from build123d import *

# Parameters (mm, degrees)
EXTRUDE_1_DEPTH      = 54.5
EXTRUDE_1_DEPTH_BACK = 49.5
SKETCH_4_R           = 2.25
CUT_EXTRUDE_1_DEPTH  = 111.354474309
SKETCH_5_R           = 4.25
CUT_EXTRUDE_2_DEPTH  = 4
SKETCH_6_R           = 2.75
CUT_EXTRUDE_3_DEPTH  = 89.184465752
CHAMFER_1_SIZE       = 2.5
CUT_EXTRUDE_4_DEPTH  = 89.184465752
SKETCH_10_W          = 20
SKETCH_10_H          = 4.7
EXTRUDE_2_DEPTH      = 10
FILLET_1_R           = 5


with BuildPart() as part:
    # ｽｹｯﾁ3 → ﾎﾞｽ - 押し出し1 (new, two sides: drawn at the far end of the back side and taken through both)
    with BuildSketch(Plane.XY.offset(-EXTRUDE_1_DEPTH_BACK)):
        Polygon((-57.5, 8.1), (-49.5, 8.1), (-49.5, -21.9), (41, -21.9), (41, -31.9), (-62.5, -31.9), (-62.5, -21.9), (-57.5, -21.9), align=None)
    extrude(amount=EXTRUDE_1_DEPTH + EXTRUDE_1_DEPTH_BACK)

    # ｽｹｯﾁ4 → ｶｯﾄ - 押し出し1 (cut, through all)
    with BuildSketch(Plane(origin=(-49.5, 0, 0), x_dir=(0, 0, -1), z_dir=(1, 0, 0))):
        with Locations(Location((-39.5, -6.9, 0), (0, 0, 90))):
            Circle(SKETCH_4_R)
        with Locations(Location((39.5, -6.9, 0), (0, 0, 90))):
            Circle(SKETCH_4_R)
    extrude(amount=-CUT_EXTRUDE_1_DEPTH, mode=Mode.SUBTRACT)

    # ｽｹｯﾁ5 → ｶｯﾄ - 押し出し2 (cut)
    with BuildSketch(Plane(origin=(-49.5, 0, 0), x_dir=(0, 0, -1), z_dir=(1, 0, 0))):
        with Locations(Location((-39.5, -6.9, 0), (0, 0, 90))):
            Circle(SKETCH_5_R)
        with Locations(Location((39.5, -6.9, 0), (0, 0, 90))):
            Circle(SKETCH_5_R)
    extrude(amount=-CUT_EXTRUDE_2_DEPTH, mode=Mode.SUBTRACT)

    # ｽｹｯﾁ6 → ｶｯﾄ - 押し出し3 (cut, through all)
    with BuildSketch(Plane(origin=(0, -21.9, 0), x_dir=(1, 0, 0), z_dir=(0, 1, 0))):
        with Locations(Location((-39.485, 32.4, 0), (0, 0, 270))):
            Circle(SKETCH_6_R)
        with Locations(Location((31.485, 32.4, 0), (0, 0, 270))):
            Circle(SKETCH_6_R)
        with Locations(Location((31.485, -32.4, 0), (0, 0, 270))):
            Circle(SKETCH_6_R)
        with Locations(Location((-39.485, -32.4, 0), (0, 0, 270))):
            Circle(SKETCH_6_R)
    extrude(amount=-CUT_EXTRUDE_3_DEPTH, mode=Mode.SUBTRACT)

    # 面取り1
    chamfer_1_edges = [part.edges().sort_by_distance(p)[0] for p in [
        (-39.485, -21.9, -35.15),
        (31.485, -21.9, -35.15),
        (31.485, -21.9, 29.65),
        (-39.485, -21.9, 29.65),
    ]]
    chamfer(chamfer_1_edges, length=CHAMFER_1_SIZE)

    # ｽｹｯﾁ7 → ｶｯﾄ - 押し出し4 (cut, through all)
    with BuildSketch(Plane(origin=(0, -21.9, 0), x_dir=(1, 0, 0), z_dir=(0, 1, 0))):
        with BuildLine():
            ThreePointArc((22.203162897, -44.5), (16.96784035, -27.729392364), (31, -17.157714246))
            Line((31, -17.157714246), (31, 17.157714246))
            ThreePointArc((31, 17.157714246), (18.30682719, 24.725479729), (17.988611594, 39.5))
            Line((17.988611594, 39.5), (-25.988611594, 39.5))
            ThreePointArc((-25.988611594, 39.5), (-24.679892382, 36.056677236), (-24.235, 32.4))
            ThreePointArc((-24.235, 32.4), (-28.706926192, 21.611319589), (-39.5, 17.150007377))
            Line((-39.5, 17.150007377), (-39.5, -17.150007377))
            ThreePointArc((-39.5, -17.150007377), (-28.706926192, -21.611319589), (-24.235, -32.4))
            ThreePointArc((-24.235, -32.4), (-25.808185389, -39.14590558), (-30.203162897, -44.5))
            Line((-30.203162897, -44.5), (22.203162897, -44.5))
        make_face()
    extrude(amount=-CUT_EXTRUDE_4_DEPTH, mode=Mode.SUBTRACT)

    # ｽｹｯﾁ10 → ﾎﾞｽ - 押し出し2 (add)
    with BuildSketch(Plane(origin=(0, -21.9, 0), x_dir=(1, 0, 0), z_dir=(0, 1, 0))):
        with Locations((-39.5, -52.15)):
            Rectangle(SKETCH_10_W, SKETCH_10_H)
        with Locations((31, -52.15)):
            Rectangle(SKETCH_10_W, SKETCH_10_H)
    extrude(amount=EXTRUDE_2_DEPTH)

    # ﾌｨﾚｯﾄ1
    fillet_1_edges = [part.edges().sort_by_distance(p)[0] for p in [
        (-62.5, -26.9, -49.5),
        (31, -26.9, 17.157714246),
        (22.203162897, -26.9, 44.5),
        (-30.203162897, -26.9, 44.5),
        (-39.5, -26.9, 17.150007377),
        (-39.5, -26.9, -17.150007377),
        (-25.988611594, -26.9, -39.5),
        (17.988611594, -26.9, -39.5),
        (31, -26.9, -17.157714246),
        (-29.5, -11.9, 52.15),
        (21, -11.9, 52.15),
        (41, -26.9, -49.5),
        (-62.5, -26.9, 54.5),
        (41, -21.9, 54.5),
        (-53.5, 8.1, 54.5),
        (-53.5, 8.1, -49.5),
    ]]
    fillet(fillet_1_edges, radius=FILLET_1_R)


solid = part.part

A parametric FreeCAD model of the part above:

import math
import FreeCAD as App
import Part
import Sketcher
from FreeCAD import Vector


def edges_at(feature, points):
    """Names of the edges that pass closest to the given points."""
    edges = feature.Shape.Edges
    near = lambda p: min(range(len(edges)), key=lambda i: edges[i].distToShape(Part.Vertex(*p))[0])
    return sorted({f"Edge{near(p) + 1}" for p in points})

doc = App.newDocument("Part")
body = doc.addObject("PartDesign::Body", "Body")

# Sketch on XY plane
sketch1 = body.newObject("Sketcher::SketchObject", "Sketch")
sketch1.AttachmentSupport = (doc.getObject("XY_Plane"), [""])
sketch1.MapMode = "FlatFace"
sketch1.addGeometry(Part.LineSegment(Vector(-50, 8, 0), Vector(-58, 8, 0)), False)
sketch1.addGeometry(Part.LineSegment(Vector(-58, 8, 0), Vector(-58, -22, 0)), False)
sketch1.addGeometry(Part.LineSegment(Vector(-58, -22, 0), Vector(-62, -22, 0)), False)
sketch1.addGeometry(Part.LineSegment(Vector(-62, -22, 0), Vector(-62, -32, 0)), False)
sketch1.addGeometry(Part.LineSegment(Vector(-62, -32, 0), Vector(41, -32, 0)), False)
sketch1.addGeometry(Part.LineSegment(Vector(41, -32, 0), Vector(41, -22, 0)), False)
sketch1.addGeometry(Part.LineSegment(Vector(41, -22, 0), Vector(-50, -22, 0)), False)
sketch1.addGeometry(Part.LineSegment(Vector(-50, -22, 0), Vector(-50, 8, 0)), False)
sketch1.addConstraint(Sketcher.Constraint("Coincident", 0, 2, 1, 1))
sketch1.addConstraint(Sketcher.Constraint("Coincident", 1, 2, 2, 1))
sketch1.addConstraint(Sketcher.Constraint("Coincident", 2, 2, 3, 1))
sketch1.addConstraint(Sketcher.Constraint("Coincident", 3, 2, 4, 1))
sketch1.addConstraint(Sketcher.Constraint("Coincident", 4, 2, 5, 1))
sketch1.addConstraint(Sketcher.Constraint("Coincident", 5, 2, 6, 1))
sketch1.addConstraint(Sketcher.Constraint("Coincident", 6, 2, 7, 1))
sketch1.addConstraint(Sketcher.Constraint("Coincident", 7, 2, 0, 1))
sketch1.addConstraint(Sketcher.Constraint("Horizontal", 0))
sketch1.addConstraint(Sketcher.Constraint("Vertical", 1))
sketch1.addConstraint(Sketcher.Constraint("Horizontal", 2))
sketch1.addConstraint(Sketcher.Constraint("Vertical", 3))
sketch1.addConstraint(Sketcher.Constraint("Horizontal", 4))
sketch1.addConstraint(Sketcher.Constraint("Vertical", 5))
sketch1.addConstraint(Sketcher.Constraint("Horizontal", 6))
sketch1.addConstraint(Sketcher.Constraint("Vertical", 7))
sketch1.addConstraint(Sketcher.Constraint("Horizontal", 2, 2, 5, 2))
sketch1.addConstraint(Sketcher.Constraint("DistanceX", 0, 2, 0, 1, 8.0))
sketch1.addConstraint(Sketcher.Constraint("DistanceX", 2, 2, 2, 1, 5.0))
sketch1.addConstraint(Sketcher.Constraint("DistanceY", 1, 2, 1, 1, 30.0))
sketch1.addConstraint(Sketcher.Constraint("DistanceY", 3, 2, 3, 1, 10.0))
sketch1.addConstraint(Sketcher.Constraint("DistanceX", 4, 1, 4, 2, 103.5))
sketch1.addConstraint(Sketcher.Constraint("DistanceX", -1, 1, 4, 2, 41.0))
sketch1.addConstraint(Sketcher.Constraint("DistanceY", -1, 1, 0, 2, 8.1))
pad1 = body.newObject("PartDesign::Pad", "Pad")
pad1.Profile = sketch1
pad1.Type = "TwoLengths"
pad1.Length = 54.5
pad1.Length2 = 49.5

# Sketch on YZ plane
sketch2 = body.newObject("Sketcher::SketchObject", "Sketch001")
sketch2.AttachmentSupport = (doc.getObject("YZ_Plane"), [""])
sketch2.MapMode = "FlatFace"
sketch2.AttachmentOffset = App.Placement(Vector(0, 0, -49.5), App.Rotation())
sketch2.addGeometry(Part.Circle(Vector(-6.9, 39.5, 0), Vector(0, 0, 1), 2.2), False)
sketch2.addGeometry(Part.Circle(Vector(-6.9, -39.5, 0), Vector(0, 0, 1), 2.2), False)
sketch2.addConstraint(Sketcher.Constraint("Equal", 0, 1))
sketch2.addConstraint(Sketcher.Constraint("Symmetric", 0, 3, 1, 3, -1))
sketch2.addConstraint(Sketcher.Constraint("Diameter", 0, 4.5))
sketch2.addConstraint(Sketcher.Constraint("DistanceY", 1, 3, 0, 3, 79.0))
sketch2.addConstraint(Sketcher.Constraint("DistanceX", 0, 3, -1, 1, 6.9))
pocket1 = body.newObject("PartDesign::Pocket", "Pocket")
pocket1.Profile = sketch2
pocket1.Type = "ThroughAll"

# Sketch on YZ plane
sketch3 = body.newObject("Sketcher::SketchObject", "Sketch002")
sketch3.AttachmentSupport = (doc.getObject("YZ_Plane"), [""])
sketch3.MapMode = "FlatFace"
sketch3.AttachmentOffset = App.Placement(Vector(0, 0, -49.5), App.Rotation())
sketch3.addGeometry(Part.Circle(Vector(-6.9, 39.5, 0), Vector(0, 0, 1), 4.2), False)
sketch3.addGeometry(Part.Circle(Vector(-6.9, -39.5, 0), Vector(0, 0, 1), 4.2), False)
sketch3.addConstraint(Sketcher.Constraint("Equal", 0, 1))
sketch3.addConstraint(Sketcher.Constraint("Symmetric", 0, 3, 1, 3, -1))
sketch3.addConstraint(Sketcher.Constraint("Diameter", 0, 8.5))
sketch3.addConstraint(Sketcher.Constraint("DistanceY", 1, 3, 0, 3, 79.0))
sketch3.addConstraint(Sketcher.Constraint("DistanceX", 0, 3, -1, 1, 6.9))
pocket2 = body.newObject("PartDesign::Pocket", "Pocket001")
pocket2.Profile = sketch3
pocket2.Length = 4

# Sketch on XZ plane
sketch4 = body.newObject("Sketcher::SketchObject", "Sketch003")
sketch4.AttachmentSupport = (doc.getObject("XZ_Plane"), [""])
sketch4.MapMode = "FlatFace"
sketch4.AttachmentOffset = App.Placement(Vector(0, 0, 21.9), App.Rotation())
sketch4.addGeometry(Part.Circle(Vector(-39.5, -32.4, 0), Vector(0, 0, 1), 2.8), False)
sketch4.addGeometry(Part.Circle(Vector(31.5, -32.4, 0), Vector(0, 0, 1), 2.8), False)
sketch4.addGeometry(Part.Circle(Vector(31.5, 32.4, 0), Vector(0, 0, 1), 2.8), False)
sketch4.addGeometry(Part.Circle(Vector(-39.5, 32.4, 0), Vector(0, 0, 1), 2.8), False)
sketch4.addConstraint(Sketcher.Constraint("Equal", 0, 1))
sketch4.addConstraint(Sketcher.Constraint("Equal", 1, 2))
sketch4.addConstraint(Sketcher.Constraint("Equal", 2, 3))
sketch4.addConstraint(Sketcher.Constraint("Symmetric", 1, 3, 2, 3, -1))
sketch4.addConstraint(Sketcher.Constraint("Symmetric", 0, 3, 3, 3, -1))
sketch4.addConstraint(Sketcher.Constraint("Horizontal", 0, 3, 1, 3))
sketch4.addConstraint(Sketcher.Constraint("Diameter", 0, 5.5))
sketch4.addConstraint(Sketcher.Constraint("DistanceY", 0, 3, -1, 1, 32.4))
sketch4.addConstraint(Sketcher.Constraint("DistanceX", 0, 3, 1, 3, 70.97))
sketch4.addConstraint(Sketcher.Constraint("DistanceX", 0, 3, -1, 1, 39.485))
pocket3 = body.newObject("PartDesign::Pocket", "Pocket002")
pocket3.Profile = sketch4
pocket3.Type = "ThroughAll"
pocket3.Reversed = True
doc.recompute()

chamfer = body.newObject("PartDesign::Chamfer", "Chamfer")
chamfer.Base = (pocket3, edges_at(pocket3, [
    (-39.485, -21.9, -35.15),
    (31.485, -21.9, -35.15),
    (31.485, -21.9, 29.65),
    (-39.485, -21.9, 29.65),
]))
chamfer.Size = 2.5

# Sketch on XZ plane
sketch5 = body.newObject("Sketcher::SketchObject", "Sketch004")
sketch5.AttachmentSupport = (doc.getObject("XZ_Plane"), [""])
sketch5.MapMode = "FlatFace"
sketch5.AttachmentOffset = App.Placement(Vector(0, 0, 21.9), App.Rotation())
sketch5.addGeometry(Part.ArcOfCircle(Part.Circle(Vector(31, 32, 0), Vector(0, 0, 1), 15), math.radians(127), math.radians(268)), False)
sketch5.addGeometry(Part.LineSegment(Vector(31, 17, 0), Vector(31, -17, 0)), False)
sketch5.addGeometry(Part.ArcOfCircle(Part.Circle(Vector(31, -32, 0), Vector(0, 0, 1), 15), math.radians(92), math.radians(208)), False)
sketch5.addGeometry(Part.LineSegment(Vector(18, -40, 0), Vector(-26, -40, 0)), False)
sketch5.addGeometry(Part.ArcOfCircle(Part.Circle(Vector(-39, -32, 0), Vector(0, 0, 1), 15), math.radians(-28), math.radians(0)), False)
sketch5.addGeometry(Part.ArcOfCircle(Part.Circle(Vector(-39, -32, 0), Vector(0, 0, 1), 15), math.radians(0), math.radians(90)), False)
sketch5.addGeometry(Part.LineSegment(Vector(-40, -17, 0), Vector(-40, 17, 0)), False)
sketch5.addGeometry(Part.ArcOfCircle(Part.Circle(Vector(-39, 32, 0), Vector(0, 0, 1), 15), math.radians(-90), math.radians(0)), False)
sketch5.addGeometry(Part.ArcOfCircle(Part.Circle(Vector(-39, 32, 0), Vector(0, 0, 1), 15), math.radians(0), math.radians(53)), False)
sketch5.addGeometry(Part.LineSegment(Vector(-30, 44, 0), Vector(22, 44, 0)), False)
sketch5.addConstraint(Sketcher.Constraint("Coincident", 0, 2, 1, 1))
sketch5.addConstraint(Sketcher.Constraint("Coincident", 1, 2, 2, 1))
sketch5.addConstraint(Sketcher.Constraint("Coincident", 2, 2, 3, 1))
sketch5.addConstraint(Sketcher.Constraint("Coincident", 3, 2, 4, 1))
sketch5.addConstraint(Sketcher.Constraint("Tangent", 4, 2, 5, 1))
sketch5.addConstraint(Sketcher.Constraint("Coincident", 5, 2, 6, 1))
sketch5.addConstraint(Sketcher.Constraint("Coincident", 6, 2, 7, 1))
sketch5.addConstraint(Sketcher.Constraint("Tangent", 7, 2, 8, 1))
sketch5.addConstraint(Sketcher.Constraint("Coincident", 8, 2, 9, 1))
sketch5.addConstraint(Sketcher.Constraint("Coincident", 9, 2, 0, 1))
sketch5.addConstraint(Sketcher.Constraint("Vertical", 1))
sketch5.addConstraint(Sketcher.Constraint("Horizontal", 3))
sketch5.addConstraint(Sketcher.Constraint("Vertical", 6))
sketch5.addConstraint(Sketcher.Constraint("Horizontal", 9))
sketch5.addConstraint(Sketcher.Constraint("Equal", 0, 2))
sketch5.addConstraint(Sketcher.Constraint("Equal", 2, 4))
sketch5.addConstraint(Sketcher.Constraint("Equal", 4, 5))
sketch5.addConstraint(Sketcher.Constraint("Equal", 5, 7))
sketch5.addConstraint(Sketcher.Constraint("Equal", 7, 8))
sketch5.addConstraint(Sketcher.Constraint("Symmetric", 0, 3, 2, 3, -1))
sketch5.addConstraint(Sketcher.Constraint("Symmetric", 4, 3, 7, 3, -1))
sketch5.addConstraint(Sketcher.Constraint("Horizontal", 2, 3, 4, 3))
sketch5.addConstraint(Sketcher.Constraint("Horizontal", 5, 3, 4, 2))
sketch5.addConstraint(Sketcher.Constraint("Horizontal", 8, 3, 7, 2))
sketch5.addConstraint(Sketcher.Constraint("Radius", 0, 15.25))
sketch5.addConstraint(Sketcher.Constraint("DistanceX", -1, 1, 0, 2, 31.0))
sketch5.addConstraint(Sketcher.Constraint("DistanceY", -1, 1, 0, 3, 32.4))
sketch5.addConstraint(Sketcher.Constraint("DistanceY", 2, 2, -1, 1, 39.5))
sketch5.addConstraint(Sketcher.Constraint("DistanceX", 5, 2, -1, 1, 39.5))
sketch5.addConstraint(Sketcher.Constraint("DistanceY", -1, 1, 8, 2, 44.5))
sketch5.addConstraint(Sketcher.Constraint("DistanceX", 4, 3, 2, 3, 70.97))
sketch5.addConstraint(Sketcher.Constraint("DistanceX", -1, 1, 0, 3, 31.485))
pocket4 = body.newObject("PartDesign::Pocket", "Pocket003")
pocket4.Profile = sketch5
pocket4.Type = "ThroughAll"
pocket4.Reversed = True

# Sketch on XZ plane
sketch6 = body.newObject("Sketcher::SketchObject", "Sketch005")
sketch6.AttachmentSupport = (doc.getObject("XZ_Plane"), [""])
sketch6.MapMode = "FlatFace"
sketch6.AttachmentOffset = App.Placement(Vector(0, 0, 21.9), App.Rotation())
sketch6.addGeometry(Part.LineSegment(Vector(-49.5, 49.8, 0), Vector(-49.5, 54.5, 0)), False)
sketch6.addGeometry(Part.LineSegment(Vector(-49.5, 54.5, 0), Vector(-29.5, 54.5, 0)), False)
sketch6.addGeometry(Part.LineSegment(Vector(-29.5, 54.5, 0), Vector(-29.5, 49.8, 0)), False)
sketch6.addGeometry(Part.LineSegment(Vector(-29.5, 49.8, 0), Vector(-49.5, 49.8, 0)), False)
sketch6.addGeometry(Part.LineSegment(Vector(21, 49.8, 0), Vector(21, 54.5, 0)), False)
sketch6.addGeometry(Part.LineSegment(Vector(21, 54.5, 0), Vector(41, 54.5, 0)), False)
sketch6.addGeometry(Part.LineSegment(Vector(41, 54.5, 0), Vector(41, 49.8, 0)), False)
sketch6.addGeometry(Part.LineSegment(Vector(41, 49.8, 0), Vector(21, 49.8, 0)), False)
sketch6.addConstraint(Sketcher.Constraint("Coincident", 0, 2, 1, 1))
sketch6.addConstraint(Sketcher.Constraint("Coincident", 1, 2, 2, 1))
sketch6.addConstraint(Sketcher.Constraint("Coincident", 2, 2, 3, 1))
sketch6.addConstraint(Sketcher.Constraint("Coincident", 3, 2, 0, 1))
sketch6.addConstraint(Sketcher.Constraint("Coincident", 4, 2, 5, 1))
sketch6.addConstraint(Sketcher.Constraint("Coincident", 5, 2, 6, 1))
sketch6.addConstraint(Sketcher.Constraint("Coincident", 6, 2, 7, 1))
sketch6.addConstraint(Sketcher.Constraint("Coincident", 7, 2, 4, 1))
sketch6.addConstraint(Sketcher.Constraint("Vertical", 0))
sketch6.addConstraint(Sketcher.Constraint("Horizontal", 1))
sketch6.addConstraint(Sketcher.Constraint("Vertical", 2))
sketch6.addConstraint(Sketcher.Constraint("Horizontal", 3))
sketch6.addConstraint(Sketcher.Constraint("Vertical", 4))
sketch6.addConstraint(Sketcher.Constraint("Horizontal", 5))
sketch6.addConstraint(Sketcher.Constraint("Vertical", 6))
sketch6.addConstraint(Sketcher.Constraint("Horizontal", 7))
sketch6.addConstraint(Sketcher.Constraint("Horizontal", 1, 2, 4, 2))
sketch6.addConstraint(Sketcher.Constraint("Horizontal", 3, 2, 6, 2))
sketch6.addConstraint(Sketcher.Constraint("Equal", 3, 5))
sketch6.addConstraint(Sketcher.Constraint("DistanceX", 1, 1, 1, 2, 20.0))
sketch6.addConstraint(Sketcher.Constraint("DistanceY", 0, 1, 0, 2, 4.7))
sketch6.addConstraint(Sketcher.Constraint("DistanceX", -1, 1, 4, 2, 21.0))
sketch6.addConstraint(Sketcher.Constraint("DistanceX", 0, 2, -1, 1, 49.5))
sketch6.addConstraint(Sketcher.Constraint("DistanceY", -1, 1, 0, 2, 54.5))
pad2 = body.newObject("PartDesign::Pad", "Pad001")
pad2.Profile = sketch6
pad2.Length = 10
pad2.Reversed = True
doc.recompute()

fillet = body.newObject("PartDesign::Fillet", "Fillet")
fillet.Base = (pad2, edges_at(pad2, [
    (-62.5, -26.9, -49.5),
    (31, -26.9, 17.158),
    (22.203, -26.9, 44.5),
    (-30.203, -26.9, 44.5),
    (-39.5, -26.9, 17.15),
    (-39.5, -26.9, -17.15),
    (-25.989, -26.9, -39.5),
    (17.989, -26.9, -39.5),
    (31, -26.9, -17.158),
    (-29.5, -11.9, 52.15),
    (21, -11.9, 52.15),
    (41, -26.9, -49.5),
    (-62.5, -26.9, 54.5),
    (41, -21.9, 54.5),
    (-53.5, 8.1, 54.5),
    (-53.5, 8.1, -49.5),
]))
fillet.Radius = 5

doc.recompute()
